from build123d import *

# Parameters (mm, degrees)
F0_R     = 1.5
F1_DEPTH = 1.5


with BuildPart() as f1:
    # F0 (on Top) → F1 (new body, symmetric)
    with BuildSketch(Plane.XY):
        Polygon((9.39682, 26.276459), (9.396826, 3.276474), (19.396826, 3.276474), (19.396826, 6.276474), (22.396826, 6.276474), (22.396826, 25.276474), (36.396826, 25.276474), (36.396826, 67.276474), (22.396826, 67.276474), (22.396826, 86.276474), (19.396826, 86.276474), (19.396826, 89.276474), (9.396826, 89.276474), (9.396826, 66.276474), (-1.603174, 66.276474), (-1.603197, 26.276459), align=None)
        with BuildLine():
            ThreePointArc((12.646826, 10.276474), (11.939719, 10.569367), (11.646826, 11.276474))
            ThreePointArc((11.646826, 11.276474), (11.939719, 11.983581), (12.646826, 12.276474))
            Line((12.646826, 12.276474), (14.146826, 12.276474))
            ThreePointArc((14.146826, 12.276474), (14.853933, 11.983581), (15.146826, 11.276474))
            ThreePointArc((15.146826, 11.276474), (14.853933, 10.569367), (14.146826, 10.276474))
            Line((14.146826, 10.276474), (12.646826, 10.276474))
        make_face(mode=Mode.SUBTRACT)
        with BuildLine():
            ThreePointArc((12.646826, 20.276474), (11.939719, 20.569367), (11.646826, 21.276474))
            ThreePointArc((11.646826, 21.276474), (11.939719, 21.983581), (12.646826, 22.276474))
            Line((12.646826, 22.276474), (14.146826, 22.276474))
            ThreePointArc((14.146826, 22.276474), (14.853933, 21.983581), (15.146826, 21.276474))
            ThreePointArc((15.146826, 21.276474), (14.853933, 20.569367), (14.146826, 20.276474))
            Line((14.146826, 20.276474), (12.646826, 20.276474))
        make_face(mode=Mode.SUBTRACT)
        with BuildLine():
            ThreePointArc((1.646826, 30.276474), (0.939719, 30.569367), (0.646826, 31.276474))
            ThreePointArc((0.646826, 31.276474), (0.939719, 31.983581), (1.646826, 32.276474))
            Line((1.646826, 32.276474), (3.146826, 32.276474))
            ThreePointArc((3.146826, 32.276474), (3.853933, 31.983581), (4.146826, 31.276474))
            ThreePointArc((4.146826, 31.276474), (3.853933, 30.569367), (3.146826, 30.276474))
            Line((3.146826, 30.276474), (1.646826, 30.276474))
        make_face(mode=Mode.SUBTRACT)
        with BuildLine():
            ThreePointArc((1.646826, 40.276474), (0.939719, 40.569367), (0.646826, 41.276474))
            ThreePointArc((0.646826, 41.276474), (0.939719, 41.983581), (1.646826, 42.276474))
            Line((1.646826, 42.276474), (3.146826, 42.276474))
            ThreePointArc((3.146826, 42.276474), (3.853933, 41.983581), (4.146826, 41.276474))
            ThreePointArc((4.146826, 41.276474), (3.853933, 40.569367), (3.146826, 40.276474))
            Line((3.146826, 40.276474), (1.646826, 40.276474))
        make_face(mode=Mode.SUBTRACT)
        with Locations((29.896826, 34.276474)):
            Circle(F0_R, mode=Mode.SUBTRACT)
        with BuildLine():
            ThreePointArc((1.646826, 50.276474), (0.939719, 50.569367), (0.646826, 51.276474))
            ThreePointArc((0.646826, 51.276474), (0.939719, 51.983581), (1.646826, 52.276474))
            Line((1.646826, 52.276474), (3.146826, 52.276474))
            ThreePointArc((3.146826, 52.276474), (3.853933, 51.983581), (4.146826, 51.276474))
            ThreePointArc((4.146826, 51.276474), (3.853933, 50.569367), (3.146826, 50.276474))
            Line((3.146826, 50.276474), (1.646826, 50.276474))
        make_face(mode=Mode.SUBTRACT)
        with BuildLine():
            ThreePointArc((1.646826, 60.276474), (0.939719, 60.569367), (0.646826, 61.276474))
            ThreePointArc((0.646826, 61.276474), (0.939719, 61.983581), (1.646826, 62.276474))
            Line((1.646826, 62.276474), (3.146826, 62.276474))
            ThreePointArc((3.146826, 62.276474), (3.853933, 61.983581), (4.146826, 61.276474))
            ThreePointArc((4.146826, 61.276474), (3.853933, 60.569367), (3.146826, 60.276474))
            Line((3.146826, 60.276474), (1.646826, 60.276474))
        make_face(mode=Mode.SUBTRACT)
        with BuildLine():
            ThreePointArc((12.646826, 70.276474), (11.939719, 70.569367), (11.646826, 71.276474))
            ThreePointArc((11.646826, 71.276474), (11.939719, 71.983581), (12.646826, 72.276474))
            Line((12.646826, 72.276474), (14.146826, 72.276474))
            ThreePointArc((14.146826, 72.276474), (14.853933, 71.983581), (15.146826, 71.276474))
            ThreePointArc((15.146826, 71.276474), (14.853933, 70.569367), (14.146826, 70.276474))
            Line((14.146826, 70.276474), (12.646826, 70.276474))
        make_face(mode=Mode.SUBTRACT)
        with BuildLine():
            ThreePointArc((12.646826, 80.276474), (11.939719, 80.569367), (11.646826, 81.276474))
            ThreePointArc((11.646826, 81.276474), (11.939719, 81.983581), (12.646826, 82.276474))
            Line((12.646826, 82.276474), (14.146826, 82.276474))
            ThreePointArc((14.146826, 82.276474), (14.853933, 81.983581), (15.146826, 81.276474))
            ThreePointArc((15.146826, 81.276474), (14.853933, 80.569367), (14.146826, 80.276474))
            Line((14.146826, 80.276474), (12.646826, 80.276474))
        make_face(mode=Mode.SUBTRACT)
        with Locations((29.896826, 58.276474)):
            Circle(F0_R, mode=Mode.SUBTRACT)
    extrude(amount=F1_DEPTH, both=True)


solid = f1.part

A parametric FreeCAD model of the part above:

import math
import FreeCAD as App
import Part
import Sketcher

V = App.Vector
Q = App.Units.Quantity


def add_polygon(sketch, points):
    """Adds a closed chain of lines whose ends are joined by coincident constraints."""
    first, n = sketch.GeometryCount, len(points)
    for a, b in zip(points, points[1:] + points[:1]):
        sketch.addGeometry(Part.LineSegment(App.Vector(*a, 0), App.Vector(*b, 0)), False)
    for i in range(n):
        sketch.addConstraint(Sketcher.Constraint("Coincident", first + i, 2, first + (i + 1) % n, 1))

doc = App.newDocument("Part")
body = doc.addObject("PartDesign::Body", "Body")

# Sketch on XY plane
sketch1 = body.newObject("Sketcher::SketchObject", "Sketch")
sketch1.AttachmentSupport = (doc.getObject("XY_Plane"), [""])
sketch1.MapMode = "FlatFace"
add_polygon(sketch1, [(9.39682, 26.276459), (9.396826, 3.276474), (19.396826, 3.276474), (19.396826, 6.276474), (22.396826, 6.276474), (22.396826, 25.276474), (36.396826, 25.276474), (36.396826, 67.276474), (22.396826, 67.276474), (22.396826, 86.276474), (19.396826, 86.276474), (19.396826, 89.276474), (9.396826, 89.276474), (9.396826, 66.276474), (-1.603174, 66.276474), (-1.603197, 26.276459)])  # lines 0-15
sketch1.addGeometry(Part.LineSegment(V(14.146826, 10.276474, 0), V(12.646826, 10.276474, 0)), False)  # 16
sketch1.addGeometry(Part.ArcOfCircle(Part.Circle(V(12.646825, 11.276473, 0), V(0, 0, 1), 0.999999), math.radians(179.999957), math.radians(270.000043)), False)  # 17
sketch1.addGeometry(Part.ArcOfCircle(Part.Circle(V(12.646825, 11.276475, 0), V(0, 0, 1), 0.999999), math.radians(89.999957), math.radians(180.000043)), False)  # 18
sketch1.addGeometry(Part.LineSegment(V(12.646826, 12.276474, 0), V(14.146826, 12.276474, 0)), False)  # 19
sketch1.addGeometry(Part.ArcOfCircle(Part.Circle(V(14.146827, 11.276475, 0), V(0, 0, 1), 0.999999), math.radians(-0.000043), math.radians(90.000043)), False)  # 20
sketch1.addGeometry(Part.ArcOfCircle(Part.Circle(V(14.146827, 11.276473, 0), V(0, 0, 1), 0.999999), math.radians(-90.000043), math.radians(0.000043)), False)  # 21
sketch1.addGeometry(Part.LineSegment(V(14.146826, 20.276474, 0), V(12.646826, 20.276474, 0)), False)  # 22
sketch1.addGeometry(Part.ArcOfCircle(Part.Circle(V(12.646825, 21.276473, 0), V(0, 0, 1), 0.999999), math.radians(179.999957), math.radians(270.000043)), False)  # 23
sketch1.addGeometry(Part.ArcOfCircle(Part.Circle(V(12.646825, 21.276475, 0), V(0, 0, 1), 0.999999), math.radians(89.999957), math.radians(180.000043)), False)  # 24
sketch1.addGeometry(Part.LineSegment(V(12.646826, 22.276474, 0), V(14.146826, 22.276474, 0)), False)  # 25
sketch1.addGeometry(Part.ArcOfCircle(Part.Circle(V(14.146827, 21.276475, 0), V(0, 0, 1), 0.999999), math.radians(-0.000043), math.radians(90.000043)), False)  # 26
sketch1.addGeometry(Part.ArcOfCircle(Part.Circle(V(14.146827, 21.276473, 0), V(0, 0, 1), 0.999999), math.radians(-90.000043), math.radians(0.000043)), False)  # 27
sketch1.addGeometry(Part.LineSegment(V(3.146826, 30.276474, 0), V(1.646826, 30.276474, 0)), False)  # 28
sketch1.addGeometry(Part.ArcOfCircle(Part.Circle(V(1.646825, 31.276473, 0), V(0, 0, 1), 0.999999), math.radians(179.999957), math.radians(270.000043)), False)  # 29
sketch1.addGeometry(Part.ArcOfCircle(Part.Circle(V(1.646825, 31.276475, 0), V(0, 0, 1), 0.999999), math.radians(89.999957), math.radians(180.000043)), False)  # 30
sketch1.addGeometry(Part.LineSegment(V(1.646826, 32.276474, 0), V(3.146826, 32.276474, 0)), False)  # 31
sketch1.addGeometry(Part.ArcOfCircle(Part.Circle(V(3.146827, 31.276475, 0), V(0, 0, 1), 0.999999), math.radians(-0.000043), math.radians(90.000043)), False)  # 32
sketch1.addGeometry(Part.ArcOfCircle(Part.Circle(V(3.146827, 31.276473, 0), V(0, 0, 1), 0.999999), math.radians(-90.000043), math.radians(0.000043)), False)  # 33
sketch1.addGeometry(Part.LineSegment(V(3.146826, 40.276474, 0), V(1.646826, 40.276474, 0)), False)  # 34
sketch1.addGeometry(Part.ArcOfCircle(Part.Circle(V(1.646825, 41.276473, 0), V(0, 0, 1), 0.999999), math.radians(179.999957), math.radians(270.000043)), False)  # 35
sketch1.addGeometry(Part.ArcOfCircle(Part.Circle(V(1.646825, 41.276475, 0), V(0, 0, 1), 0.999999), math.radians(89.999957), math.radians(180.000043)), False)  # 36
sketch1.addGeometry(Part.LineSegment(V(1.646826, 42.276474, 0), V(3.146826, 42.276474, 0)), False)  # 37
sketch1.addGeometry(Part.ArcOfCircle(Part.Circle(V(3.146827, 41.276475, 0), V(0, 0, 1), 0.999999), math.radians(-0.000043), math.radians(90.000043)), False)  # 38
sketch1.addGeometry(Part.ArcOfCircle(Part.Circle(V(3.146827, 41.276473, 0), V(0, 0, 1), 0.999999), math.radians(-90.000043), math.radians(0.000043)), False)  # 39
sketch1.addGeometry(Part.Circle(V(29.896826, 34.276474, 0), V(0, 0, 1), 1.5), False)  # 40
sketch1.addGeometry(Part.LineSegment(V(3.146826, 50.276474, 0), V(1.646826, 50.276474, 0)), False)  # 41
sketch1.addGeometry(Part.ArcOfCircle(Part.Circle(V(1.646825, 51.276473, 0), V(0, 0, 1), 0.999999), math.radians(179.999957), math.radians(270.000043)), False)  # 42
sketch1.addGeometry(Part.ArcOfCircle(Part.Circle(V(1.646825, 51.276475, 0), V(0, 0, 1), 0.999999), math.radians(89.999957), math.radians(180.000043)), False)  # 43
sketch1.addGeometry(Part.LineSegment(V(1.646826, 52.276474, 0), V(3.146826, 52.276474, 0)), False)  # 44
sketch1.addGeometry(Part.ArcOfCircle(Part.Circle(V(3.146827, 51.276475, 0), V(0, 0, 1), 0.999999), math.radians(-0.000043), math.radians(90.000043)), False)  # 45
sketch1.addGeometry(Part.ArcOfCircle(Part.Circle(V(3.146827, 51.276473, 0), V(0, 0, 1), 0.999999), math.radians(-90.000043), math.radians(0.000043)), False)  # 46
sketch1.addGeometry(Part.LineSegment(V(3.146826, 60.276474, 0), V(1.646826, 60.276474, 0)), False)  # 47
sketch1.addGeometry(Part.ArcOfCircle(Part.Circle(V(1.646825, 61.276473, 0), V(0, 0, 1), 0.999999), math.radians(179.999957), math.radians(270.000043)), False)  # 48
sketch1.addGeometry(Part.ArcOfCircle(Part.Circle(V(1.646825, 61.276475, 0), V(0, 0, 1), 0.999999), math.radians(89.999957), math.radians(180.000043)), False)  # 49
sketch1.addGeometry(Part.LineSegment(V(1.646826, 62.276474, 0), V(3.146826, 62.276474, 0)), False)  # 50
sketch1.addGeometry(Part.ArcOfCircle(Part.Circle(V(3.146827, 61.276475, 0), V(0, 0, 1), 0.999999), math.radians(-0.000043), math.radians(90.000043)), False)  # 51
sketch1.addGeometry(Part.ArcOfCircle(Part.Circle(V(3.146827, 61.276473, 0), V(0, 0, 1), 0.999999), math.radians(-90.000043), math.radians(0.000043)), False)  # 52
sketch1.addGeometry(Part.LineSegment(V(14.146826, 70.276474, 0), V(12.646826, 70.276474, 0)), False)  # 53
sketch1.addGeometry(Part.ArcOfCircle(Part.Circle(V(12.646825, 71.276473, 0), V(0, 0, 1), 0.999999), math.radians(179.999957), math.radians(270.000043)), False)  # 54
sketch1.addGeometry(Part.ArcOfCircle(Part.Circle(V(12.646825, 71.276475, 0), V(0, 0, 1), 0.999999), math.radians(89.999957), math.radians(180.000043)), False)  # 55
sketch1.addGeometry(Part.LineSegment(V(12.646826, 72.276474, 0), V(14.146826, 72.276474, 0)), False)  # 56
sketch1.addGeometry(Part.ArcOfCircle(Part.Circle(V(14.146827, 71.276475, 0), V(0, 0, 1), 0.999999), math.radians(-0.000043), math.radians(90.000043)), False)  # 57
sketch1.addGeometry(Part.ArcOfCircle(Part.Circle(V(14.146827, 71.276473, 0), V(0, 0, 1), 0.999999), math.radians(-90.000043), math.radians(0.000043)), False)  # 58
sketch1.addGeometry(Part.LineSegment(V(14.146826, 80.276474, 0), V(12.646826, 80.276474, 0)), False)  # 59
sketch1.addGeometry(Part.ArcOfCircle(Part.Circle(V(12.646825, 81.276473, 0), V(0, 0, 1), 0.999999), math.radians(179.999957), math.radians(270.000043)), False)  # 60
sketch1.addGeometry(Part.ArcOfCircle(Part.Circle(V(12.646825, 81.276475, 0), V(0, 0, 1), 0.999999), math.radians(89.999957), math.radians(180.000043)), False)  # 61
sketch1.addGeometry(Part.LineSegment(V(12.646826, 82.276474, 0), V(14.146826, 82.276474, 0)), False)  # 62
sketch1.addGeometry(Part.ArcOfCircle(Part.Circle(V(14.146827, 81.276475, 0), V(0, 0, 1), 0.999999), math.radians(-0.000043), math.radians(90.000043)), False)  # 63
sketch1.addGeometry(Part.ArcOfCircle(Part.Circle(V(14.146827, 81.276473, 0), V(0, 0, 1), 0.999999), math.radians(-90.000043), math.radians(0.000043)), False)  # 64
sketch1.addGeometry(Part.Circle(V(29.896826, 58.276474, 0), V(0, 0, 1), 1.5), False)  # 65
sketch1.addConstraint([
    Sketcher.Constraint("Coincident", 16, 2, 17, 2),
    Sketcher.Constraint("Coincident", 17, 1, 18, 2),
    Sketcher.Constraint("Coincident", 18, 1, 19, 1),
    Sketcher.Constraint("Coincident", 19, 2, 20, 2),
    Sketcher.Constraint("Coincident", 20, 1, 21, 2),
    Sketcher.Constraint("Coincident", 21, 1, 16, 1),
    Sketcher.Constraint("Coincident", 22, 2, 23, 2),
    Sketcher.Constraint("Coincident", 23, 1, 24, 2),
    Sketcher.Constraint("Coincident", 24, 1, 25, 1),
    Sketcher.Constraint("Coincident", 25, 2, 26, 2),
    Sketcher.Constraint("Coincident", 26, 1, 27, 2),
    Sketcher.Constraint("Coincident", 27, 1, 22, 1),
    Sketcher.Constraint("Coincident", 28, 2, 29, 2),
    Sketcher.Constraint("Coincident", 29, 1, 30, 2),
    Sketcher.Constraint("Coincident", 30, 1, 31, 1),
    Sketcher.Constraint("Coincident", 31, 2, 32, 2),
    Sketcher.Constraint("Coincident", 32, 1, 33, 2),
    Sketcher.Constraint("Coincident", 33, 1, 28, 1),
    Sketcher.Constraint("Coincident", 34, 2, 35, 2),
    Sketcher.Constraint("Coincident", 35, 1, 36, 2),
    Sketcher.Constraint("Coincident", 36, 1, 37, 1),
    Sketcher.Constraint("Coincident", 37, 2, 38, 2),
    Sketcher.Constraint("Coincident", 38, 1, 39, 2),
    Sketcher.Constraint("Coincident", 39, 1, 34, 1),
    Sketcher.Constraint("Coincident", 41, 2, 42, 2),
    Sketcher.Constraint("Coincident", 42, 1, 43, 2),
    Sketcher.Constraint("Coincident", 43, 1, 44, 1),
    Sketcher.Constraint("Coincident", 44, 2, 45, 2),
    Sketcher.Constraint("Coincident", 45, 1, 46, 2),
    Sketcher.Constraint("Coincident", 46, 1, 41, 1),
    Sketcher.Constraint("Coincident", 47, 2, 48, 2),
    Sketcher.Constraint("Coincident", 48, 1, 49, 2),
    Sketcher.Constraint("Coincident", 49, 1, 50, 1),
    Sketcher.Constraint("Coincident", 50, 2, 51, 2),
    Sketcher.Constraint("Coincident", 51, 1, 52, 2),
    Sketcher.Constraint("Coincident", 52, 1, 47, 1),
    Sketcher.Constraint("Coincident", 53, 2, 54, 2),
    Sketcher.Constraint("Coincident", 54, 1, 55, 2),
    Sketcher.Constraint("Coincident", 55, 1, 56, 1),
    Sketcher.Constraint("Coincident", 56, 2, 57, 2),
    Sketcher.Constraint("Coincident", 57, 1, 58, 2),
    Sketcher.Constraint("Coincident", 58, 1, 53, 1),
    Sketcher.Constraint("Coincident", 59, 2, 60, 2),
    Sketcher.Constraint("Coincident", 60, 1, 61, 2),
    Sketcher.Constraint("Coincident", 61, 1, 62, 1),
    Sketcher.Constraint("Coincident", 62, 2, 63, 2),
    Sketcher.Constraint("Coincident", 63, 1, 64, 2),
    Sketcher.Constraint("Coincident", 64, 1, 59, 1),
    Sketcher.Constraint("Horizontal", 1),
    Sketcher.Constraint("Vertical", 2),
    Sketcher.Constraint("Horizontal", 3),
    Sketcher.Constraint("Vertical", 4),
    Sketcher.Constraint("Horizontal", 5),
    Sketcher.Constraint("Vertical", 6),
    Sketcher.Constraint("Horizontal", 7),
    Sketcher.Constraint("Vertical", 8),
    Sketcher.Constraint("Horizontal", 9),
    Sketcher.Constraint("Vertical", 10),
    Sketcher.Constraint("Horizontal", 11),
    Sketcher.Constraint("Vertical", 12),
    Sketcher.Constraint("Horizontal", 13),
    Sketcher.Constraint("Horizontal", 15),
    Sketcher.Constraint("Horizontal", 16),
    Sketcher.Constraint("Horizontal", 19),
    Sketcher.Constraint("Horizontal", 22),
    Sketcher.Constraint("Horizontal", 25),
    Sketcher.Constraint("Horizontal", 28),
    Sketcher.Constraint("Horizontal", 31),
    Sketcher.Constraint("Horizontal", 34),
    Sketcher.Constraint("Horizontal", 37),
    Sketcher.Constraint("Horizontal", 41),
    Sketcher.Constraint("Horizontal", 44),
    Sketcher.Constraint("Horizontal", 47),
    Sketcher.Constraint("Horizontal", 50),
    Sketcher.Constraint("Horizontal", 53),
    Sketcher.Constraint("Horizontal", 56),
    Sketcher.Constraint("Horizontal", 59),
    Sketcher.Constraint("Horizontal", 62),
    Sketcher.Constraint("Coincident", 18, 3, 17, 3),
    Sketcher.Constraint("Coincident", 21, 3, 20, 3),
    Sketcher.Constraint("Coincident", 24, 3, 23, 3),
    Sketcher.Constraint("Coincident", 27, 3, 26, 3),
    Sketcher.Constraint("Coincident", 30, 3, 29, 3),
    Sketcher.Constraint("Coincident", 33, 3, 32, 3),
    Sketcher.Constraint("Coincident", 36, 3, 35, 3),
    Sketcher.Constraint("Coincident", 39, 3, 38, 3),
    Sketcher.Constraint("Coincident", 43, 3, 42, 3),
    Sketcher.Constraint("Coincident", 46, 3, 45, 3),
    Sketcher.Constraint("Coincident", 49, 3, 48, 3),
    Sketcher.Constraint("Coincident", 52, 3, 51, 3),
    Sketcher.Constraint("Coincident", 55, 3, 54, 3),
    Sketcher.Constraint("Coincident", 58, 3, 57, 3),
    Sketcher.Constraint("Coincident", 61, 3, 60, 3),
    Sketcher.Constraint("Coincident", 64, 3, 63, 3),
    Sketcher.Constraint("Diameter", 40, Q("3 mm")),
    Sketcher.Constraint("Diameter", 65, Q("3 mm")),
    Sketcher.Constraint("Radius", 17, Q("0.999999 mm")),
    Sketcher.Constraint("Radius", 23, Q("0.999999 mm")),
    Sketcher.Constraint("Radius", 29, Q("0.999999 mm")),
    Sketcher.Constraint("Radius", 35, Q("0.999999 mm")),
    Sketcher.Constraint("Radius", 42, Q("0.999999 mm")),
    Sketcher.Constraint("Radius", 48, Q("0.999999 mm")),
    Sketcher.Constraint("Radius", 54, Q("0.999999 mm")),
    Sketcher.Constraint("Radius", 60, Q("0.999999 mm")),
    Sketcher.Constraint("DistanceX", 1, 1, 1, 2, Q("10 mm")),
    Sketcher.Constraint("DistanceX", 3, 1, 3, 2, Q("3 mm")),
    Sketcher.Constraint("DistanceX", 5, 1, 5, 2, Q("14 mm")),
    Sketcher.Constraint("DistanceX", 7, 2, 7, 1, Q("14 mm")),
    Sketcher.Constraint("DistanceX", 9, 2, 9, 1, Q("3 mm")),
    Sketcher.Constraint("DistanceX", 11, 2, 11, 1, Q("10 mm")),
    Sketcher.Constraint("DistanceX", 13, 2, 13, 1, Q("11 mm")),
    Sketcher.Constraint("DistanceY", 2, 1, 2, 2, Q("3 mm")),
    Sketcher.Constraint("DistanceY", 4, 1, 4, 2, Q("19 mm")),
    Sketcher.Constraint("DistanceY", 6, 1, 6, 2, Q("42 mm")),
    Sketcher.Constraint("DistanceY", 8, 1, 8, 2, Q("19 mm")),
    Sketcher.Constraint("DistanceY", 10, 1, 10, 2, Q("3 mm")),
    Sketcher.Constraint("DistanceY", 12, 2, 12, 1, Q("23 mm")),
    Sketcher.Constraint("DistanceX", 16, 2, 16, 1, Q("1.5 mm")),
    Sketcher.Constraint("DistanceX", 19, 1, 19, 2, Q("1.5 mm")),
    Sketcher.Constraint("DistanceX", 22, 2, 22, 1, Q("1.5 mm")),
    Sketcher.Constraint("DistanceX", 25, 1, 25, 2, Q("1.5 mm")),
    Sketcher.Constraint("DistanceX", 28, 2, 28, 1, Q("1.5 mm")),
    Sketcher.Constraint("DistanceX", 31, 1, 31, 2, Q("1.5 mm")),
    Sketcher.Constraint("DistanceX", 34, 2, 34, 1, Q("1.5 mm")),
    Sketcher.Constraint("DistanceX", 37, 1, 37, 2, Q("1.5 mm")),
    Sketcher.Constraint("DistanceX", 41, 2, 41, 1, Q("1.5 mm")),
    Sketcher.Constraint("DistanceX", 44, 1, 44, 2, Q("1.5 mm")),
    Sketcher.Constraint("DistanceX", 47, 2, 47, 1, Q("1.5 mm")),
    Sketcher.Constraint("DistanceX", 50, 1, 50, 2, Q("1.5 mm")),
    Sketcher.Constraint("DistanceX", 53, 2, 53, 1, Q("1.5 mm")),
    Sketcher.Constraint("DistanceX", 56, 1, 56, 2, Q("1.5 mm")),
    Sketcher.Constraint("DistanceX", 59, 2, 59, 1, Q("1.5 mm")),
    Sketcher.Constraint("DistanceX", 62, 1, 62, 2, Q("1.5 mm")),
    Sketcher.Constraint("DistanceX", 15, 1, 15, 2, Q("11.000017 mm")),
    Sketcher.Constraint("DistanceY", -1, 1, 14, 2, Q("26.276459 mm")),
    Sketcher.Constraint("DistanceX", -1, 1, 15, 2, Q("9.39682 mm")),
    Sketcher.Constraint("Distance", 0, Q("22.999985 mm")),
    Sketcher.Constraint("DistanceX", -1, 1, 17, 3, Q("12.646825 mm")),
    Sketcher.Constraint("DistanceY", -1, 1, 17, 3, Q("11.276473 mm")),
    Sketcher.Constraint("DistanceX", -1, 1, 20, 3, Q("14.146827 mm")),
    Sketcher.Constraint("DistanceX", -1, 1, 23, 3, Q("12.646825 mm")),
    Sketcher.Constraint("DistanceY", -1, 1, 23, 3, Q("21.276473 mm")),
    Sketcher.Constraint("DistanceX", -1, 1, 26, 3, Q("14.146827 mm")),
    Sketcher.Constraint("DistanceX", -1, 1, 29, 3, Q("1.646825 mm")),
    Sketcher.Constraint("DistanceY", -1, 1, 29, 3, Q("31.276473 mm")),
    Sketcher.Constraint("DistanceX", -1, 1, 32, 3, Q("3.146827 mm")),
    Sketcher.Constraint("DistanceX", -1, 1, 35, 3, Q("1.646825 mm")),
    Sketcher.Constraint("DistanceY", -1, 1, 35, 3, Q("41.276473 mm")),
    Sketcher.Constraint("DistanceX", -1, 1, 38, 3, Q("3.146827 mm")),
    Sketcher.Constraint("DistanceX", -1, 1, 40, 3, Q("29.896826 mm")),
    Sketcher.Constraint("DistanceY", -1, 1, 40, 3, Q("34.276474 mm")),
    Sketcher.Constraint("DistanceX", -1, 1, 42, 3, Q("1.646825 mm")),
    Sketcher.Constraint("DistanceY", -1, 1, 42, 3, Q("51.276473 mm")),
    Sketcher.Constraint("DistanceX", -1, 1, 45, 3, Q("3.146827 mm")),
    Sketcher.Constraint("DistanceX", -1, 1, 48, 3, Q("1.646825 mm")),
    Sketcher.Constraint("DistanceY", -1, 1, 48, 3, Q("61.276473 mm")),
    Sketcher.Constraint("DistanceX", -1, 1, 51, 3, Q("3.146827 mm")),
    Sketcher.Constraint("DistanceX", -1, 1, 54, 3, Q("12.646825 mm")),
    Sketcher.Constraint("DistanceY", -1, 1, 54, 3, Q("71.276473 mm")),
    Sketcher.Constraint("DistanceX", -1, 1, 57, 3, Q("14.146827 mm")),
    Sketcher.Constraint("DistanceX", -1, 1, 60, 3, Q("12.646825 mm")),
    Sketcher.Constraint("DistanceY", -1, 1, 60, 3, Q("81.276473 mm")),
    Sketcher.Constraint("DistanceX", -1, 1, 63, 3, Q("14.146827 mm")),
    Sketcher.Constraint("DistanceX", -1, 1, 65, 3, Q("29.896826 mm")),
    Sketcher.Constraint("DistanceY", -1, 1, 65, 3, Q("58.276474 mm")),
    Sketcher.Constraint("DistanceX", -1, 1, 0, 2, Q("9.396826 mm")),
    Sketcher.Constraint("DistanceX", -1, 1, 16, 2, Q("12.646826 mm")),
    Sketcher.Constraint("DistanceY", -1, 1, 17, 1, Q("11.276474 mm")),
    Sketcher.Constraint("DistanceX", -1, 1, 18, 1, Q("12.646826 mm")),
    Sketcher.Constraint("DistanceY", -1, 1, 20, 1, Q("11.276474 mm")),
    Sketcher.Constraint("DistanceX", -1, 1, 22, 2, Q("12.646826 mm")),
    Sketcher.Constraint("DistanceY", -1, 1, 23, 1, Q("21.276474 mm")),
    Sketcher.Constraint("DistanceX", -1, 1, 24, 1, Q("12.646826 mm")),
    Sketcher.Constraint("DistanceY", -1, 1, 26, 1, Q("21.276474 mm")),
    Sketcher.Constraint("DistanceX", -1, 1, 28, 2, Q("1.646826 mm")),
    Sketcher.Constraint("DistanceY", -1, 1, 29, 1, Q("31.276474 mm")),
    Sketcher.Constraint("DistanceX", -1, 1, 30, 1, Q("1.646826 mm")),
    Sketcher.Constraint("DistanceY", -1, 1, 32, 1, Q("31.276474 mm")),
    Sketcher.Constraint("DistanceX", -1, 1, 34, 2, Q("1.646826 mm")),
    Sketcher.Constraint("DistanceY", -1, 1, 35, 1, Q("41.276474 mm")),
    Sketcher.Constraint("DistanceX", -1, 1, 36, 1, Q("1.646826 mm")),
    Sketcher.Constraint("DistanceY", -1, 1, 38, 1, Q("41.276474 mm")),
    Sketcher.Constraint("DistanceX", -1, 1, 41, 2, Q("1.646826 mm")),
    Sketcher.Constraint("DistanceY", -1, 1, 42, 1, Q("51.276474 mm")),
    Sketcher.Constraint("DistanceX", -1, 1, 43, 1, Q("1.646826 mm")),
    Sketcher.Constraint("DistanceY", -1, 1, 45, 1, Q("51.276474 mm")),
    Sketcher.Constraint("DistanceX", -1, 1, 47, 2, Q("1.646826 mm")),
    Sketcher.Constraint("DistanceY", -1, 1, 48, 1, Q("61.276474 mm")),
    Sketcher.Constraint("DistanceX", -1, 1, 49, 1, Q("1.646826 mm")),
    Sketcher.Constraint("DistanceY", -1, 1, 51, 1, Q("61.276474 mm")),
    Sketcher.Constraint("DistanceX", -1, 1, 53, 2, Q("12.646826 mm")),
    Sketcher.Constraint("DistanceY", -1, 1, 54, 1, Q("71.276474 mm")),
    Sketcher.Constraint("DistanceX", -1, 1, 55, 1, Q("12.646826 mm")),
    Sketcher.Constraint("DistanceY", -1, 1, 57, 1, Q("71.276474 mm")),
    Sketcher.Constraint("DistanceX", -1, 1, 59, 2, Q("12.646826 mm")),
    Sketcher.Constraint("DistanceY", -1, 1, 60, 1, Q("81.276474 mm")),
    Sketcher.Constraint("DistanceX", -1, 1, 61, 1, Q("12.646826 mm")),
    Sketcher.Constraint("DistanceY", -1, 1, 63, 1, Q("81.276474 mm")),
])
pad1 = body.newObject("PartDesign::Pad", "Pad")
pad1.Profile = sketch1
pad1.Length = 3
pad1.Midplane = True

doc.recompute()
